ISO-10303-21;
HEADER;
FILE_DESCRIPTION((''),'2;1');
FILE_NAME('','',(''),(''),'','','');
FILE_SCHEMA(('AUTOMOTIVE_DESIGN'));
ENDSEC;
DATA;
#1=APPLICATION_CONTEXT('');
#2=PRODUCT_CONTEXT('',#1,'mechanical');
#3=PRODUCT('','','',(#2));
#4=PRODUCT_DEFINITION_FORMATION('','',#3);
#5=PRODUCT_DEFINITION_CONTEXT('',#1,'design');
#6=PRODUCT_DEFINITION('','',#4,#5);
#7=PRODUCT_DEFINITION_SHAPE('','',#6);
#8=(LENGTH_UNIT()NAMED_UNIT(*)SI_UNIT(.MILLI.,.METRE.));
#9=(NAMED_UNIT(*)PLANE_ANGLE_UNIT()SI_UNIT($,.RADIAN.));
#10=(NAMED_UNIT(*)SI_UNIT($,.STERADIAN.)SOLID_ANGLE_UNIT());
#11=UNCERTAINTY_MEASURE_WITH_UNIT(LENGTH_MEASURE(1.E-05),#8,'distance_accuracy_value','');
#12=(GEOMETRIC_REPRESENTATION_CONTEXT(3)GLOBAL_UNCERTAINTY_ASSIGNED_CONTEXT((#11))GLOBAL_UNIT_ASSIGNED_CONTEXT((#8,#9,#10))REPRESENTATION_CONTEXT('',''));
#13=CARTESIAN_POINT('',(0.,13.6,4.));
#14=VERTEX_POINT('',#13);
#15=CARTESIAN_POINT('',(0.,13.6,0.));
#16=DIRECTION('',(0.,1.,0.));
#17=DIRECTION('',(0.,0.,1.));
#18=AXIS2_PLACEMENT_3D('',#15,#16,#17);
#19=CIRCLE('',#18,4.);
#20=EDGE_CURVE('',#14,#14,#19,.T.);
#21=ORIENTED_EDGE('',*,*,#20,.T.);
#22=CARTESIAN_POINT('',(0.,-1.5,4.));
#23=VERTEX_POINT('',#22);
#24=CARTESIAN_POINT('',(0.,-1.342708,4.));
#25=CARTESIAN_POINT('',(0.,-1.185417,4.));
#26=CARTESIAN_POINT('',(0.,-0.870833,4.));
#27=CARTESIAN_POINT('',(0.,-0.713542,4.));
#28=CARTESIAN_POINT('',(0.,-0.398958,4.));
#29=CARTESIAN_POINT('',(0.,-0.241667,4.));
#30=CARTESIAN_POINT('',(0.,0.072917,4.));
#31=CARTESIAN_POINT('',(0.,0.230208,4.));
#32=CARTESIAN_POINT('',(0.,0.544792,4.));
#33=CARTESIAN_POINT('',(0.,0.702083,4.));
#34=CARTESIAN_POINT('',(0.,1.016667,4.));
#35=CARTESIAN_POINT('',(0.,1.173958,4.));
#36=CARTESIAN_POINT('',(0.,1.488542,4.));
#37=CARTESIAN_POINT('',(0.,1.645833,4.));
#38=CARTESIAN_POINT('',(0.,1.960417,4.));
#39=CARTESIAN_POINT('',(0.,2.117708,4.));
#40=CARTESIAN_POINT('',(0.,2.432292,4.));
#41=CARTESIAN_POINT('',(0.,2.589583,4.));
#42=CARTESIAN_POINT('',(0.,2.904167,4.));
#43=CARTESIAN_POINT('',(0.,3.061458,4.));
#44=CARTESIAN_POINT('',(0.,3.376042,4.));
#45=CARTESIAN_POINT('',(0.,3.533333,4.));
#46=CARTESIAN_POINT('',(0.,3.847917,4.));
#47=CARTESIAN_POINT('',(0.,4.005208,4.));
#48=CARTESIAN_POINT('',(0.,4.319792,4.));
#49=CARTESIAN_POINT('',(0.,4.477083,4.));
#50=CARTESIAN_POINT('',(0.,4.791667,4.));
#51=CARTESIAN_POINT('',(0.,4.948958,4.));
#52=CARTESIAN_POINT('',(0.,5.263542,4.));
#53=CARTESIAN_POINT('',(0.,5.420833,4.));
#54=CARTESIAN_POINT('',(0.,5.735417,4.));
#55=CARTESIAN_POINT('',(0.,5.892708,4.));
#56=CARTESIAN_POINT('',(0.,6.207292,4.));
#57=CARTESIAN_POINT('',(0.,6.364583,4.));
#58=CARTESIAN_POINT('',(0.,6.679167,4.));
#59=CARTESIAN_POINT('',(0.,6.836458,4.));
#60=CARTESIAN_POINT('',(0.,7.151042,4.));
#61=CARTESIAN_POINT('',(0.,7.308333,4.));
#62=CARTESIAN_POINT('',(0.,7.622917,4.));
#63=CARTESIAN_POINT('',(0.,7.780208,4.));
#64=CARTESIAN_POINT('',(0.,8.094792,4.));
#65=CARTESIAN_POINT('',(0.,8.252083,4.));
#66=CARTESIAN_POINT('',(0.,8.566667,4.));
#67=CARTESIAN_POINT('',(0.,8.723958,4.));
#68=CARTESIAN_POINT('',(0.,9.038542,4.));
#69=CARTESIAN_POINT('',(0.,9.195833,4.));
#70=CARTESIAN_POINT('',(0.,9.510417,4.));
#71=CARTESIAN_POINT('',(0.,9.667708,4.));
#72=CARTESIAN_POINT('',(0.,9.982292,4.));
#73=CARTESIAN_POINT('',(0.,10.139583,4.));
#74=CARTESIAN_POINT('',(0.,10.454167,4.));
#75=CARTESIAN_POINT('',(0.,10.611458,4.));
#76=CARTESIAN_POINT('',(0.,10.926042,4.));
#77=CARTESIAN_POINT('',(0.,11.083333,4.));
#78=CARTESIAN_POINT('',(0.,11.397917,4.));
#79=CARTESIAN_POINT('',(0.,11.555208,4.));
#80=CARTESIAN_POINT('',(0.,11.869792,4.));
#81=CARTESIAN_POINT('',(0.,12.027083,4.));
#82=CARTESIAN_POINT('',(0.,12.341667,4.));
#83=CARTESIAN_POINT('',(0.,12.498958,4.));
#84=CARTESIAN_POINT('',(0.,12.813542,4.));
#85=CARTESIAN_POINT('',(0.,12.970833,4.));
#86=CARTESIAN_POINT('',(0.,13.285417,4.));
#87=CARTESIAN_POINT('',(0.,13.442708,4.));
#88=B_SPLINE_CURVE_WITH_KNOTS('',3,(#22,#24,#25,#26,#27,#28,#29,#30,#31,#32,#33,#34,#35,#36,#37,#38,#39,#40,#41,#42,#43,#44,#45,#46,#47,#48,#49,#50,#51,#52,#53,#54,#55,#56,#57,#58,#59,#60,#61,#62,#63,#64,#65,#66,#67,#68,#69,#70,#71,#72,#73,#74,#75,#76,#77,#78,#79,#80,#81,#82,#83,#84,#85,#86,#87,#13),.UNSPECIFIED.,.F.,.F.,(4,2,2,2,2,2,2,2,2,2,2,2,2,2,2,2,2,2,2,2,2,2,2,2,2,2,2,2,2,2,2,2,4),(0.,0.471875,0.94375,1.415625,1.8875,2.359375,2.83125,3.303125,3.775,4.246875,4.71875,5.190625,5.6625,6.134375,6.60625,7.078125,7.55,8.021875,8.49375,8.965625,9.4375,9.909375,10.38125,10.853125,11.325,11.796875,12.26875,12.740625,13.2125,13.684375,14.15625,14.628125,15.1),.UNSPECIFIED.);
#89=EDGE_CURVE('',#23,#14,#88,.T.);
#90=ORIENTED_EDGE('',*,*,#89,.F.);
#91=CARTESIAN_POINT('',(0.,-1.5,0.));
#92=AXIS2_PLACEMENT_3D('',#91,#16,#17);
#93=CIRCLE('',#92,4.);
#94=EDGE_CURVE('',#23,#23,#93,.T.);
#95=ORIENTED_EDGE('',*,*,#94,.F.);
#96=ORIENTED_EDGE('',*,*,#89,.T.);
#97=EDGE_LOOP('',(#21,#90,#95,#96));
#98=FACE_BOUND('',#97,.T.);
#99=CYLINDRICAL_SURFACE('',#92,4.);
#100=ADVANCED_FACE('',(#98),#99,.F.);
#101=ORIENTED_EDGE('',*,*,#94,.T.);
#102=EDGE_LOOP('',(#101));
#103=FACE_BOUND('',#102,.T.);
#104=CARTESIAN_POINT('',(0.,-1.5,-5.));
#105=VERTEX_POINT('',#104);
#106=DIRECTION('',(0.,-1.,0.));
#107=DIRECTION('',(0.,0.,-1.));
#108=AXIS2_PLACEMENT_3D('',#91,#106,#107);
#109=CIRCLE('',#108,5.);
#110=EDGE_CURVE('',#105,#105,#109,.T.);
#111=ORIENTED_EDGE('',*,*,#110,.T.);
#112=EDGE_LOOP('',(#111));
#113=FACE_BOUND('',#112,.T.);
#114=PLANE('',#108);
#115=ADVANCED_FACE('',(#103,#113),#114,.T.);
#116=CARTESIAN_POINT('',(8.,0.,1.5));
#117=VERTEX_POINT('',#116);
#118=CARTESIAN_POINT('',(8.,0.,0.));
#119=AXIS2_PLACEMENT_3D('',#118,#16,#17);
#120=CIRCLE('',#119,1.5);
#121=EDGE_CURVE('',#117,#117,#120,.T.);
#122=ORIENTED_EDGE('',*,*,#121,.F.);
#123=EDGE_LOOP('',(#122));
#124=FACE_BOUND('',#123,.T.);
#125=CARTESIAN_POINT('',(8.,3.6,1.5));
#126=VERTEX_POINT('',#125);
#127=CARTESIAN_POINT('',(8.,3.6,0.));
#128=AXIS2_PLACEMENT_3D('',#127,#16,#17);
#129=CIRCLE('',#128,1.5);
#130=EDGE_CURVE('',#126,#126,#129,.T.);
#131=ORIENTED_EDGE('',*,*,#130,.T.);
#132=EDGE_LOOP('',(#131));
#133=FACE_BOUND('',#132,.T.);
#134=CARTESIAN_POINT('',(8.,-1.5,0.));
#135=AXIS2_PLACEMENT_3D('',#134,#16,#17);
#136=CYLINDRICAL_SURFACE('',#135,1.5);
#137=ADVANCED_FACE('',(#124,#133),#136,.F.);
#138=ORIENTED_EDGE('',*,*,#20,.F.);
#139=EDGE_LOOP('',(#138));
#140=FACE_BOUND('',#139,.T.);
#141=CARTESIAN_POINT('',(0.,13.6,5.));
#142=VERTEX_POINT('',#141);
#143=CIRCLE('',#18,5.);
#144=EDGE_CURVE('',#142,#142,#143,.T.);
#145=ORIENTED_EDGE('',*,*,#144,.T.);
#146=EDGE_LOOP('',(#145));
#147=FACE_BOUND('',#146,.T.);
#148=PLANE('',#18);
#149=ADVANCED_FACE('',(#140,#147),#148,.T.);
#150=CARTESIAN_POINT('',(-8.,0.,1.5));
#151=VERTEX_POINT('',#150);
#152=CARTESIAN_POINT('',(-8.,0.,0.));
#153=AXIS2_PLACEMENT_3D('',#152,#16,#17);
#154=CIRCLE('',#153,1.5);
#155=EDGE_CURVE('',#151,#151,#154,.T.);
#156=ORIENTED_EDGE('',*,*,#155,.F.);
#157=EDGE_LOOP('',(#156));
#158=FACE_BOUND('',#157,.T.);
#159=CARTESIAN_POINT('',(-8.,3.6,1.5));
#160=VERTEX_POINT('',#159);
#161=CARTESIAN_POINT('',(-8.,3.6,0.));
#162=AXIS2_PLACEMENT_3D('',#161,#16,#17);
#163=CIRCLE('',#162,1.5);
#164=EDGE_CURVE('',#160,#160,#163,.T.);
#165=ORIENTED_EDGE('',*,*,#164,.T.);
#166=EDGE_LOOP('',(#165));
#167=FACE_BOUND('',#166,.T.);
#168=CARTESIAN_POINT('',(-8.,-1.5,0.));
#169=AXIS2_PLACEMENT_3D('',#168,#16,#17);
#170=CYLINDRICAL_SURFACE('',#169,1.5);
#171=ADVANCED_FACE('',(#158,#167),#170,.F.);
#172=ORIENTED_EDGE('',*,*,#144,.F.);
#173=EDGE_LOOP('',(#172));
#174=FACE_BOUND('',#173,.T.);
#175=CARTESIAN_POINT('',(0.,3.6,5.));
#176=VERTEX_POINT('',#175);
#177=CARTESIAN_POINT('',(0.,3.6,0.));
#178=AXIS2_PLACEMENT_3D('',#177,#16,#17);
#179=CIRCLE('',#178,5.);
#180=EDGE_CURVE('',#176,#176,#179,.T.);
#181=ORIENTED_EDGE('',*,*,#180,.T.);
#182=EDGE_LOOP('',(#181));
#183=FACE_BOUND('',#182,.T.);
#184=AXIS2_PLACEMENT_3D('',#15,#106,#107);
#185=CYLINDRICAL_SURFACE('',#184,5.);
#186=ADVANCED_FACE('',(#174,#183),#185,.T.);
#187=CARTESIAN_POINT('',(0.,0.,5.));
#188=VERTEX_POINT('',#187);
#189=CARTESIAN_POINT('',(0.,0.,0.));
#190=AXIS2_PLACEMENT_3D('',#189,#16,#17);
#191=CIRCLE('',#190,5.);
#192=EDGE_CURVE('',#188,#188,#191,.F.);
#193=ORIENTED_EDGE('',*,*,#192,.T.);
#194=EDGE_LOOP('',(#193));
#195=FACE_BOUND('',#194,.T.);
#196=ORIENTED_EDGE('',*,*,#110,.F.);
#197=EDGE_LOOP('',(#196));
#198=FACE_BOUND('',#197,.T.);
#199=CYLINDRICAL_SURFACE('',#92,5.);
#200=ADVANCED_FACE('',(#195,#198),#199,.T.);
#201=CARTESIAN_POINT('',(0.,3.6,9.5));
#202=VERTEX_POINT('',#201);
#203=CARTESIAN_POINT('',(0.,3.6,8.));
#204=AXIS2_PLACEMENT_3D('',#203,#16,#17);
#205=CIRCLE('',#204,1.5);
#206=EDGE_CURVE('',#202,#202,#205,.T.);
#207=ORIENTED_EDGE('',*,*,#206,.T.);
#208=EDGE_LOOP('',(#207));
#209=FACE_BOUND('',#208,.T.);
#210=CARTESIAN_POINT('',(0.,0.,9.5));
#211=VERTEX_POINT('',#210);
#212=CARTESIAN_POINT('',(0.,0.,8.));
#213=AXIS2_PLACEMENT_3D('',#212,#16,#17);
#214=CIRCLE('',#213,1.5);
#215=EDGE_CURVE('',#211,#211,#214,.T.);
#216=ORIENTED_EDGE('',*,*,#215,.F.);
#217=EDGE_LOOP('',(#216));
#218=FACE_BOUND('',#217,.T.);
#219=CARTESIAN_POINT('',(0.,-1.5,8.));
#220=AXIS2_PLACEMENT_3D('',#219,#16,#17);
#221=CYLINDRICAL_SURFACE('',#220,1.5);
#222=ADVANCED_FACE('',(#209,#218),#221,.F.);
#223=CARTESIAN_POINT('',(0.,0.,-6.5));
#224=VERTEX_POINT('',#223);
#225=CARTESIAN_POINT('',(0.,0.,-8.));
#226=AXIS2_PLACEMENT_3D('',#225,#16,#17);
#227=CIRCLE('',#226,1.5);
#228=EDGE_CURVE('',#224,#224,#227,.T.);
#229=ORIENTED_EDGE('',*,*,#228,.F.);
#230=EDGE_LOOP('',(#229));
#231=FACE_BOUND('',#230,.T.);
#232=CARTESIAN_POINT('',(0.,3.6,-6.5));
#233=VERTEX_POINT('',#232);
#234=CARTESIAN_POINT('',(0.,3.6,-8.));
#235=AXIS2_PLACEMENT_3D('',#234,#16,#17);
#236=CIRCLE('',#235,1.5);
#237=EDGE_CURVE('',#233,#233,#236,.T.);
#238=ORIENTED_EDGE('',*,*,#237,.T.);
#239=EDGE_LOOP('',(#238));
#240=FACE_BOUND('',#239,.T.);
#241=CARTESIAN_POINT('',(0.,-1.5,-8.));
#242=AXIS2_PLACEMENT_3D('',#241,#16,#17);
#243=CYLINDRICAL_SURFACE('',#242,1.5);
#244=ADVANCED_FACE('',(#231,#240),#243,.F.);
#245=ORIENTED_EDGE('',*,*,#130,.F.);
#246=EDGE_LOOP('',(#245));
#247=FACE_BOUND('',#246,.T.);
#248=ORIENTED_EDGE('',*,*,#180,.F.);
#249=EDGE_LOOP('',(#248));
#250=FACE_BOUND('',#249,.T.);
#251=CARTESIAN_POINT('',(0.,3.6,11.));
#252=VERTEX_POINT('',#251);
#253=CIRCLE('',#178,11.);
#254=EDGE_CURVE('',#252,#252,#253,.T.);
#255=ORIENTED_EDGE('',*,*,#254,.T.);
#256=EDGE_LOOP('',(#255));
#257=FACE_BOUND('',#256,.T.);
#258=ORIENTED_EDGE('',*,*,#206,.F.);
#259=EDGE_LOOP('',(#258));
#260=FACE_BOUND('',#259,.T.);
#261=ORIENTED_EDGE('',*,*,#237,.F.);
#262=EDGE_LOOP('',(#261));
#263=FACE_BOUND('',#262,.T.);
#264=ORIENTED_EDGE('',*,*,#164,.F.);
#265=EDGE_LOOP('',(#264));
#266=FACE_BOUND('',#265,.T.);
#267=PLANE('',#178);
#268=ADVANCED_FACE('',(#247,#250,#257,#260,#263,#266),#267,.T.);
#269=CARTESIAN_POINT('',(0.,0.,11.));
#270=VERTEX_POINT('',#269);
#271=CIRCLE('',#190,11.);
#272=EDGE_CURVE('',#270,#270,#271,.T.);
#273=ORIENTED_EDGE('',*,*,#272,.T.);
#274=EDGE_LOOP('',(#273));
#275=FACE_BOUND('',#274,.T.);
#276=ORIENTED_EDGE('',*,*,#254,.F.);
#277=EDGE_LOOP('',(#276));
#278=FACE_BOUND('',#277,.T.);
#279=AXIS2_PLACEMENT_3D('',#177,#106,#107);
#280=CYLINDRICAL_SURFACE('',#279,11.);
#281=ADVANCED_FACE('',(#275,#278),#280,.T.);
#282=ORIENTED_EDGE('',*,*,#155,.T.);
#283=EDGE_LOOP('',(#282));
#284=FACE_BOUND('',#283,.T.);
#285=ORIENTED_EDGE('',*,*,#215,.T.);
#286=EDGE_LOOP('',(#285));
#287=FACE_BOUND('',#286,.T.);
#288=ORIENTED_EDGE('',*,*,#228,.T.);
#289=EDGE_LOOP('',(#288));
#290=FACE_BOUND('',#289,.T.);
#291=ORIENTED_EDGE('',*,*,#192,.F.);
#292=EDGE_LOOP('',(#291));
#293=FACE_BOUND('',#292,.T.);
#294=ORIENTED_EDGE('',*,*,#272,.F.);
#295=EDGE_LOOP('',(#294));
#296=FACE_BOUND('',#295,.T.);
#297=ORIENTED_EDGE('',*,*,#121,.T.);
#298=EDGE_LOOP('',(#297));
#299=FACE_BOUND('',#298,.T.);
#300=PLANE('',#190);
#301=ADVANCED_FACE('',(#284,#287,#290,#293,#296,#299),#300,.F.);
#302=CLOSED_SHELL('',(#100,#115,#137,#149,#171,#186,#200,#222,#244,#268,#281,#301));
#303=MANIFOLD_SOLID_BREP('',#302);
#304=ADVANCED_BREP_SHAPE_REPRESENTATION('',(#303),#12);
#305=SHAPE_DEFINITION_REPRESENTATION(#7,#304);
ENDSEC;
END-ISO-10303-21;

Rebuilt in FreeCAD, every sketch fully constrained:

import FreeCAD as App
import Part
import Sketcher
from FreeCAD import Vector
Q = App.Units.Quantity

doc = App.newDocument("Part")
body = doc.addObject("PartDesign::Body", "Body")

# Sketch on XZ plane
sketch1 = body.newObject("Sketcher::SketchObject", "Sketch")
sketch1.AttachmentSupport = (doc.getObject("XZ_Plane"), [""])
sketch1.MapMode = "FlatFace"
sketch1.addGeometry(Part.Circle(Vector(0, 0, 0), Vector(0, 0, 1), 11), False)
sketch1.addConstraint(Sketcher.Constraint("Coincident", 0, 3, -1, 1))
sketch1.addConstraint(Sketcher.Constraint("Diameter", 0, Q("22 mm")))
pad1 = body.newObject("PartDesign::Pad", "Pad")
pad1.Profile = sketch1
pad1.Length = 3.6
pad1.Reversed = True

# Sketch on XZ plane
sketch2 = body.newObject("Sketcher::SketchObject", "Sketch001")
sketch2.AttachmentSupport = (doc.getObject("XZ_Plane"), [""])
sketch2.MapMode = "FlatFace"
sketch2.AttachmentOffset = App.Placement(Vector(0, 0, -3.6), App.Rotation())
sketch2.addGeometry(Part.Circle(Vector(0, 0, 0), Vector(0, 0, 1), 5), False)
sketch2.addConstraint(Sketcher.Constraint("Coincident", 0, 3, -1, 1))
sketch2.addConstraint(Sketcher.Constraint("Diameter", 0, Q("10 mm")))
pad2 = body.newObject("PartDesign::Pad", "Pad001")
pad2.Profile = sketch2
pad2.Length = 10
pad2.Reversed = True

# Sketch on XZ plane
sketch3 = body.newObject("Sketcher::SketchObject", "Sketch002")
sketch3.AttachmentSupport = (doc.getObject("XZ_Plane"), [""])
sketch3.MapMode = "FlatFace"
sketch3.AttachmentOffset = App.Placement(Vector(0, 0, 1.5), App.Rotation())
sketch3.addGeometry(Part.Circle(Vector(0, 0, 0), Vector(0, 0, 1), 5), False)
sketch3.addConstraint(Sketcher.Constraint("Coincident", 0, 3, -1, 1))
sketch3.addConstraint(Sketcher.Constraint("Diameter", 0, Q("10 mm")))
pad3 = body.newObject("PartDesign::Pad", "Pad002")
pad3.Profile = sketch3
pad3.Length = 1.5
pad3.Reversed = True

# Sketch on XZ plane
sketch4 = body.newObject("Sketcher::SketchObject", "Sketch003")
sketch4.AttachmentSupport = (doc.getObject("XZ_Plane"), [""])
sketch4.MapMode = "FlatFace"
sketch4.AttachmentOffset = App.Placement(Vector(0, 0, -13.6), App.Rotation())
sketch4.addGeometry(Part.Circle(Vector(0, 0, 0), Vector(0, 0, 1), 4), False)
sketch4.addConstraint(Sketcher.Constraint("Coincident", 0, 3, -1, 1))
sketch4.addConstraint(Sketcher.Constraint("Diameter", 0, Q("8 mm")))
pocket1 = body.newObject("PartDesign::Pocket", "Pocket")
pocket1.Profile = sketch4
pocket1.Type = "ThroughAll"
pocket1.Reversed = True

# Sketch on XZ plane
sketch5 = body.newObject("Sketcher::SketchObject", "Sketch004")
sketch5.AttachmentSupport = (doc.getObject("XZ_Plane"), [""])
sketch5.MapMode = "FlatFace"
sketch5.AttachmentOffset = App.Placement(Vector(0, 0, -3.6), App.Rotation())
sketch5.addGeometry(Part.Circle(Vector(0, -8, 0), Vector(0, 0, 1), 1.5), False)
sketch5.addConstraint(Sketcher.Constraint("PointOnObject", 0, 3, -2))
sketch5.addConstraint(Sketcher.Constraint("Diameter", 0, Q("3 mm")))
sketch5.addConstraint(Sketcher.Constraint("DistanceY", 0, 3, -1, 1, Q("8 mm")))
pocket2 = body.newObject("PartDesign::Pocket", "Pocket001")
pocket2.Profile = sketch5
pocket2.Length = 38.986484
pocket2.Midplane = True
doc.recompute()

polarpattern = body.newObject("PartDesign::PolarPattern", "PolarPattern")
polarpattern.Originals = [pocket2]
polarpattern.Axis = (doc.getObject("Y_Axis"), [""])
polarpattern.Angle = 360
polarpattern.Occurrences = 4
body.Tip = polarpattern

doc.recompute()
